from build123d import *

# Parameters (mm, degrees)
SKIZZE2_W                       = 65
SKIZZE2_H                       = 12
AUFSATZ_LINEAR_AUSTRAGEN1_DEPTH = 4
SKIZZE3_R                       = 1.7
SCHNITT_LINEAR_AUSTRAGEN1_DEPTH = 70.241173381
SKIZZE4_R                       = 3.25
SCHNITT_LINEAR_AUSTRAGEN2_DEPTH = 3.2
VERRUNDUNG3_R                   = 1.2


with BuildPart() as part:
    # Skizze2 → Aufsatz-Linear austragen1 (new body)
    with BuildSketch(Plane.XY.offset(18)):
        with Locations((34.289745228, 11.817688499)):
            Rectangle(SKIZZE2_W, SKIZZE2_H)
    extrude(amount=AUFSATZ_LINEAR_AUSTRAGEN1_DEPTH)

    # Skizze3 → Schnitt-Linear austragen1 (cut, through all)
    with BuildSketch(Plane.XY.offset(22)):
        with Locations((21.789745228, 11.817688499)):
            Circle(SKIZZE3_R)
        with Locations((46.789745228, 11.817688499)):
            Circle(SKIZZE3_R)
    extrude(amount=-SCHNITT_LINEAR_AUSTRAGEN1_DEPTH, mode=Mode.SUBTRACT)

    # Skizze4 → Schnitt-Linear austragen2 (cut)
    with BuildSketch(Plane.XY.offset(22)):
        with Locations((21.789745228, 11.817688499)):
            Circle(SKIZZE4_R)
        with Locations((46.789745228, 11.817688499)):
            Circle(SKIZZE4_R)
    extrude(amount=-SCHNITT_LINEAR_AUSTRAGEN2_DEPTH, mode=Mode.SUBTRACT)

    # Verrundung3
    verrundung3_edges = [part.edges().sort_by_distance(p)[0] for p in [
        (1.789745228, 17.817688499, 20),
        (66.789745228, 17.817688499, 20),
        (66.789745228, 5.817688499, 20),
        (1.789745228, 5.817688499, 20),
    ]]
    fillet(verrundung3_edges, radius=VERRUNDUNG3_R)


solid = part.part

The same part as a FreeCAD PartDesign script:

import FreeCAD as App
import Part
import Sketcher
from FreeCAD import Vector


def edges_at(feature, points):
    """Names of the edges that pass closest to the given points."""
    edges = feature.Shape.Edges
    near = lambda p: min(range(len(edges)), key=lambda i: edges[i].distToShape(Part.Vertex(*p))[0])
    return sorted({f"Edge{near(p) + 1}" for p in points})


def add_polygon(sketch, points):
    """Adds a closed chain of lines whose ends are joined by coincident constraints."""
    first, n = sketch.GeometryCount, len(points)
    for a, b in zip(points, points[1:] + points[:1]):
        sketch.addGeometry(Part.LineSegment(App.Vector(*a, 0), App.Vector(*b, 0)), False)
    for i in range(n):
        sketch.addConstraint(Sketcher.Constraint("Coincident", first + i, 2, first + (i + 1) % n, 1))

doc = App.newDocument("Part")
params = doc.addObject("Spreadsheet::Sheet", "Params")
for row, (alias, value) in enumerate([
    ("sketch1_width", "65 mm"),
    ("sketch1_height", "12 mm"),
    ("pad1_length", "4 mm"),
    ("sketch2_diameter", "3.4 mm"),
    ("sketch3_diameter", "6.5 mm"),
    ("pocket2_length", "3.2 mm"),
    ("fillet_radius", "1.2 mm"),
], start=1):
    params.set(f"A{row}", alias)
    params.set(f"B{row}", "=" + value)
    params.setAlias(f"B{row}", alias)

body = doc.addObject("PartDesign::Body", "Body")

sketch1 = doc.addObject("Sketcher::SketchObject", "Sketch")
body.addObject(sketch1)
sketch1.AttachmentSupport = (doc.XY_Plane, [""])
sketch1.MapMode = "FlatFace"
sketch1.AttachmentOffset = App.Placement(Vector(0, 0, 18), App.Rotation())
add_polygon(sketch1, [(2, 18), (2, 6), (67, 6), (67, 18)])
sketch1.addConstraint(Sketcher.Constraint("Vertical", 0))
sketch1.addConstraint(Sketcher.Constraint("Horizontal", 1))
sketch1.addConstraint(Sketcher.Constraint("Vertical", 2))
sketch1.addConstraint(Sketcher.Constraint("Horizontal", 3))
sketch1.addConstraint(Sketcher.Constraint("DistanceX", 1, 1, 1, 2, 65.0))
sketch1.addConstraint(Sketcher.Constraint("DistanceY", 0, 2, 0, 1, 12.0))
sketch1.addConstraint(Sketcher.Constraint("DistanceY", -1, 1, 0, 2, 5.817688))
sketch1.addConstraint(Sketcher.Constraint("DistanceX", -1, 1, 0, 2, 1.789745))
sketch1.setExpression("Constraints[8]", "Params.sketch1_width")
sketch1.setExpression("Constraints[9]", "Params.sketch1_height")
pad1 = doc.addObject("PartDesign::Pad", "Pad")
body.addObject(pad1)
pad1.Profile = sketch1
pad1.setExpression("Length", "Params.pad1_length")

sketch2 = doc.addObject("Sketcher::SketchObject", "Sketch001")
body.addObject(sketch2)
sketch2.AttachmentSupport = (doc.XY_Plane, [""])
sketch2.MapMode = "FlatFace"
sketch2.AttachmentOffset = App.Placement(Vector(0, 0, 22), App.Rotation())
sketch2.addGeometry(Part.Circle(Vector(21.8, 11.8, 0), Vector(0, 0, 1), 1.7), False)
sketch2.addGeometry(Part.Circle(Vector(46.8, 11.8, 0), Vector(0, 0, 1), 1.7), False)
sketch2.addConstraint(Sketcher.Constraint("Equal", 0, 1))
sketch2.addConstraint(Sketcher.Constraint("Horizontal", 0, 3, 1, 3))
sketch2.addConstraint(Sketcher.Constraint("Diameter", 0, 3.4))
sketch2.addConstraint(Sketcher.Constraint("DistanceX", 0, 3, 1, 3, 25.0))
sketch2.addConstraint(Sketcher.Constraint("DistanceY", -1, 1, 0, 3, 11.817688))
sketch2.addConstraint(Sketcher.Constraint("DistanceX", -1, 1, 0, 3, 21.789745))
sketch2.setExpression("Constraints[2]", "Params.sketch2_diameter")
pocket1 = doc.addObject("PartDesign::Pocket", "Pocket")
body.addObject(pocket1)
pocket1.Profile = sketch2
pocket1.Type = "ThroughAll"

sketch3 = doc.addObject("Sketcher::SketchObject", "Sketch002")
body.addObject(sketch3)
sketch3.AttachmentSupport = (doc.XY_Plane, [""])
sketch3.MapMode = "FlatFace"
sketch3.AttachmentOffset = App.Placement(Vector(0, 0, 22), App.Rotation())
sketch3.addGeometry(Part.Circle(Vector(21.8, 11.8, 0), Vector(0, 0, 1), 3.2), False)
sketch3.addGeometry(Part.Circle(Vector(46.8, 11.8, 0), Vector(0, 0, 1), 3.2), False)
sketch3.addConstraint(Sketcher.Constraint("Equal", 0, 1))
sketch3.addConstraint(Sketcher.Constraint("Horizontal", 0, 3, 1, 3))
sketch3.addConstraint(Sketcher.Constraint("Diameter", 0, 6.5))
sketch3.addConstraint(Sketcher.Constraint("DistanceX", 0, 3, 1, 3, 25.0))
sketch3.addConstraint(Sketcher.Constraint("DistanceY", -1, 1, 0, 3, 11.817688))
sketch3.addConstraint(Sketcher.Constraint("DistanceX", -1, 1, 0, 3, 21.789745))
sketch3.setExpression("Constraints[2]", "Params.sketch3_diameter")
pocket2 = doc.addObject("PartDesign::Pocket", "Pocket001")
body.addObject(pocket2)
pocket2.Profile = sketch3
pocket2.setExpression("Length", "Params.pocket2_length")
doc.recompute()

fillet = doc.addObject("PartDesign::Fillet", "Fillet")
body.addObject(fillet)
fillet.Base = (pocket2, edges_at(pocket2, [
    (1.79, 17.818, 20),
    (66.79, 17.818, 20),
    (66.79, 5.818, 20),
    (1.79, 5.818, 20),
]))
fillet.setExpression("Radius", "Params.fillet_radius")

doc.recompute()
